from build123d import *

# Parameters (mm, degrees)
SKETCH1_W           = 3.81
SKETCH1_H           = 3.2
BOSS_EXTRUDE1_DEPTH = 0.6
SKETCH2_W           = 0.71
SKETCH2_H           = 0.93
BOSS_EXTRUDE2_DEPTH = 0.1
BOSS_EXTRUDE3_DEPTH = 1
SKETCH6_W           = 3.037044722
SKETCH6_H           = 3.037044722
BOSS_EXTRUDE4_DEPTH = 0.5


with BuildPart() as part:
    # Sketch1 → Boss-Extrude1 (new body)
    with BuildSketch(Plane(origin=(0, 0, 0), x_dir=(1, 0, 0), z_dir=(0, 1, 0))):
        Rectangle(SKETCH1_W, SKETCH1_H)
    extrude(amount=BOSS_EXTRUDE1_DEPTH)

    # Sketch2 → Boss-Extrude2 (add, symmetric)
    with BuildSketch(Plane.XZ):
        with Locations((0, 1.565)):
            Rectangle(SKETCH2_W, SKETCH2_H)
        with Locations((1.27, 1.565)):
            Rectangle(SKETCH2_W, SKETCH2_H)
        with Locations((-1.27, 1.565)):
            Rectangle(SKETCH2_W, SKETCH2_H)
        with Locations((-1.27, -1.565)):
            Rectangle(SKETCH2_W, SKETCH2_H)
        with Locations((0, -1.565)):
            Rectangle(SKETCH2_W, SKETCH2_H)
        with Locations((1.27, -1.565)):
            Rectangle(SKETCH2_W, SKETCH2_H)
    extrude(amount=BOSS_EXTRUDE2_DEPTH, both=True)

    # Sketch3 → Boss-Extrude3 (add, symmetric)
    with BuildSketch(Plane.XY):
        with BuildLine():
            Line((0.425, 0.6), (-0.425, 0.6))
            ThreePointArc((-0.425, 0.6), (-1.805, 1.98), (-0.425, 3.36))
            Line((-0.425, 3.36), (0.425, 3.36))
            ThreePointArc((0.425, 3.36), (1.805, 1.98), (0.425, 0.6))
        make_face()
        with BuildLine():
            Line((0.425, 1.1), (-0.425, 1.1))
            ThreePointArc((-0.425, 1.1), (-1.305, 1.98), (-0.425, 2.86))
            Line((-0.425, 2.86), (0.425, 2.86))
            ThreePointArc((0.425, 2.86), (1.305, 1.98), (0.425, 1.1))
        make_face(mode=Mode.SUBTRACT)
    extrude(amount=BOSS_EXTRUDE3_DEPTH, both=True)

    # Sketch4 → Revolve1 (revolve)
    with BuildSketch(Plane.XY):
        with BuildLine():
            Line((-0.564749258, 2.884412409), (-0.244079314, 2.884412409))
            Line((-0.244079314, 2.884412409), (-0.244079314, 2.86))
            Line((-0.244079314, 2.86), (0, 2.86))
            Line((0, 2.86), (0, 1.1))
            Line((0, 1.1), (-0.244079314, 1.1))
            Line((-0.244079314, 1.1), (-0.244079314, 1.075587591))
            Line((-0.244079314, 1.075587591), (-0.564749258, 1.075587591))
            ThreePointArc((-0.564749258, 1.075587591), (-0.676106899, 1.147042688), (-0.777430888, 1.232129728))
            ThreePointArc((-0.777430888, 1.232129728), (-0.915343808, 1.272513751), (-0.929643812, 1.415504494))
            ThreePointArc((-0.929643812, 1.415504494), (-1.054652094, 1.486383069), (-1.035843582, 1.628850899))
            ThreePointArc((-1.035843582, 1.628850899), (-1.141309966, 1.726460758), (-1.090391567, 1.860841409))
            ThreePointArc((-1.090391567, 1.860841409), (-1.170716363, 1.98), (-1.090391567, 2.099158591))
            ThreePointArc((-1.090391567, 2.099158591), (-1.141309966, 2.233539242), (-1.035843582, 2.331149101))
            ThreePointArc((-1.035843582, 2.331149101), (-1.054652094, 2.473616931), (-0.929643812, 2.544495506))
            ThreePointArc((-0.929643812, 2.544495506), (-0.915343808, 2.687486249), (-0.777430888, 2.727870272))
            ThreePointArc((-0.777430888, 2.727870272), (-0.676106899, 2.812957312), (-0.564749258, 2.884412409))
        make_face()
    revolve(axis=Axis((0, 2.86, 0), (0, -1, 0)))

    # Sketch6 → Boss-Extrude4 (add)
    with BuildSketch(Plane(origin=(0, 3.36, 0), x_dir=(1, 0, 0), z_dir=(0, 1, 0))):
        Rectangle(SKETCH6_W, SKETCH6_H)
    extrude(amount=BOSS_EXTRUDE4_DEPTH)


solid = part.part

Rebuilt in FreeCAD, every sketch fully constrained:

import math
import FreeCAD as App
import Part
import Sketcher
from FreeCAD import Vector


def add_polygon(sketch, points):
    """Adds a closed chain of lines whose ends are joined by coincident constraints."""
    first, n = sketch.GeometryCount, len(points)
    for a, b in zip(points, points[1:] + points[:1]):
        sketch.addGeometry(Part.LineSegment(App.Vector(*a, 0), App.Vector(*b, 0)), False)
    for i in range(n):
        sketch.addConstraint(Sketcher.Constraint("Coincident", first + i, 2, first + (i + 1) % n, 1))

doc = App.newDocument("Part")
body = doc.addObject("PartDesign::Body", "Body")

sketch1 = body.newObject("Sketcher::SketchObject", "Sketch")
sketch1.AttachmentSupport = (doc.getObject("XZ_Plane"), [""])
sketch1.MapMode = "FlatFace"
add_polygon(sketch1, [(-1.905, -1.6), (-1.905, 1.6), (1.905, 1.6), (1.905, -1.6)])
sketch1.addConstraint([
    Sketcher.Constraint("Vertical", 0),
    Sketcher.Constraint("Horizontal", 1),
    Sketcher.Constraint("Vertical", 2),
    Sketcher.Constraint("Horizontal", 3),
    Sketcher.Constraint("Symmetric", 0, 2, 2, 2, -1, 1),
    Sketcher.Constraint("DistanceY", 0, 1, 0, 2, 3.2),
    Sketcher.Constraint("DistanceX", 1, 1, 1, 2, 3.81),
])
pad1 = body.newObject("PartDesign::Pad", "Pad")
pad1.Profile = sketch1
pad1.Length = 0.6
pad1.Reversed = True

sketch2 = body.newObject("Sketcher::SketchObject", "Sketch001")
sketch2.AttachmentSupport = (doc.getObject("XZ_Plane"), [""])
sketch2.MapMode = "FlatFace"
add_polygon(sketch2, [(-0.355, 2.03), (-0.355, 1.1), (0.355, 1.1), (0.355, 2.03)])
add_polygon(sketch2, [(0.915, 2.03), (0.915, 1.1), (1.625, 1.1), (1.625, 2.03)])
add_polygon(sketch2, [(-1.625, 2.03), (-1.625, 1.1), (-0.915, 1.1), (-0.915, 2.03)])
add_polygon(sketch2, [(-1.625, -1.1), (-1.625, -2.03), (-0.915, -2.03), (-0.915, -1.1)])
add_polygon(sketch2, [(-0.355, -1.1), (-0.355, -2.03), (0.355, -2.03), (0.355, -1.1)])
add_polygon(sketch2, [(0.915, -1.1), (0.915, -2.03), (1.625, -2.03), (1.625, -1.1)])
sketch2.addConstraint([
    Sketcher.Constraint("Vertical", 0),
    Sketcher.Constraint("Horizontal", 1),
    Sketcher.Constraint("Vertical", 2),
    Sketcher.Constraint("Horizontal", 3),
    Sketcher.Constraint("Vertical", 4),
    Sketcher.Constraint("Horizontal", 5),
    Sketcher.Constraint("Vertical", 6),
    Sketcher.Constraint("Horizontal", 7),
    Sketcher.Constraint("Vertical", 8),
    Sketcher.Constraint("Horizontal", 9),
    Sketcher.Constraint("Vertical", 10),
    Sketcher.Constraint("Horizontal", 11),
    Sketcher.Constraint("Vertical", 12),
    Sketcher.Constraint("Horizontal", 13),
    Sketcher.Constraint("Vertical", 14),
    Sketcher.Constraint("Horizontal", 15),
    Sketcher.Constraint("Vertical", 16),
    Sketcher.Constraint("Horizontal", 17),
    Sketcher.Constraint("Vertical", 18),
    Sketcher.Constraint("Horizontal", 19),
    Sketcher.Constraint("Vertical", 20),
    Sketcher.Constraint("Horizontal", 21),
    Sketcher.Constraint("Vertical", 22),
    Sketcher.Constraint("Horizontal", 23),
    Sketcher.Constraint("Symmetric", 6, 2, 12, 2, -1, 1),
    Sketcher.Constraint("Symmetric", 4, 2, 14, 2, -1, 1),
    Sketcher.Constraint("Symmetric", 2, 2, 16, 2, -1, 1),
    Sketcher.Constraint("Symmetric", 0, 2, 18, 2, -1, 1),
    Sketcher.Constraint("Symmetric", 10, 2, 20, 2, -1, 1),
    Sketcher.Constraint("Symmetric", 8, 2, 22, 2, -1, 1),
    Sketcher.Constraint("Symmetric", 5, 2, 8, 2, -2),
    Sketcher.Constraint("Symmetric", 7, 2, 10, 2, -2),
    Sketcher.Constraint("Horizontal", 1, 2, 4, 2),
    Sketcher.Constraint("Horizontal", 3, 2, 6, 2),
    Sketcher.Constraint("Vertical", 3, 2, 16, 2),
    Sketcher.Constraint("Equal", 3, 5),
    Sketcher.Constraint("DistanceX", 1, 1, 1, 2, 0.71),
    Sketcher.Constraint("DistanceY", 0, 2, 0, 1, 0.93),
    Sketcher.Constraint("DistanceY", -1, 1, 0, 2, 1.1),
    Sketcher.Constraint("DistanceX", 1, 2, 4, 2, 0.56),
])
pad2 = body.newObject("PartDesign::Pad", "Pad001")
pad2.Profile = sketch2
pad2.Length = 0.2
pad2.Midplane = True

sketch3 = body.newObject("Sketcher::SketchObject", "Sketch002")
sketch3.AttachmentSupport = (doc.getObject("XY_Plane"), [""])
sketch3.MapMode = "FlatFace"
sketch3.addGeometry([
    Part.LineSegment(Vector(-0.425, 0.6, 0), Vector(0.425, 0.6, 0)),
    Part.ArcOfCircle(Part.Circle(Vector(0.425, 1.98, 0), Vector(0, 0, 1), 1.38), math.radians(-90), math.radians(90)),
    Part.LineSegment(Vector(0.425, 3.36, 0), Vector(-0.425, 3.36, 0)),
    Part.ArcOfCircle(Part.Circle(Vector(-0.425, 1.98, 0), Vector(0, 0, 1), 1.38), math.radians(90), math.radians(270)),
    Part.LineSegment(Vector(0.425, 1.1, 0), Vector(-0.425, 1.1, 0)),
    Part.ArcOfCircle(Part.Circle(Vector(-0.425, 1.98, 0), Vector(0, 0, 1), 0.88), math.radians(90), math.radians(270)),
    Part.LineSegment(Vector(-0.425, 2.86, 0), Vector(0.425, 2.86, 0)),
    Part.ArcOfCircle(Part.Circle(Vector(0.425, 1.98, 0), Vector(0, 0, 1), 0.88), math.radians(-90), math.radians(90)),
], False)
sketch3.addConstraint([
    Sketcher.Constraint("Tangent", 0, 2, 1, 1),
    Sketcher.Constraint("Tangent", 1, 2, 2, 1),
    Sketcher.Constraint("Tangent", 2, 2, 3, 1),
    Sketcher.Constraint("Tangent", 3, 2, 0, 1),
    Sketcher.Constraint("Tangent", 4, 2, 5, 2),
    Sketcher.Constraint("Tangent", 5, 1, 6, 1),
    Sketcher.Constraint("Tangent", 6, 2, 7, 2),
    Sketcher.Constraint("Tangent", 7, 1, 4, 1),
    Sketcher.Constraint("Horizontal", 0),
    Sketcher.Constraint("Horizontal", 2),
    Sketcher.Constraint("Horizontal", 4),
    Sketcher.Constraint("Horizontal", 6),
    Sketcher.Constraint("Coincident", 5, 3, 3, 3),
    Sketcher.Constraint("Vertical", 7, 3, 0, 2),
    Sketcher.Constraint("Radius", 1, 1.38),
    Sketcher.Constraint("Radius", 5, 0.88),
    Sketcher.Constraint("DistanceX", 0, 1, 0, 2, 0.85),
    Sketcher.Constraint("DistanceY", -1, 1, 0, 2, 0.6),
    Sketcher.Constraint("DistanceX", -1, 1, 1, 3, 0.425),
])
pad3 = body.newObject("PartDesign::Pad", "Pad002")
pad3.Profile = sketch3
pad3.Length = 2
pad3.Midplane = True

sketch4 = body.newObject("Sketcher::SketchObject", "Sketch003")
sketch4.AttachmentSupport = (doc.getObject("XY_Plane"), [""])
sketch4.MapMode = "FlatFace"
sketch4.addGeometry([
    Part.LineSegment(Vector(-0.244079, 2.884412, 0), Vector(-0.564749, 2.884412, 0)),
    Part.ArcOfCircle(Part.Circle(Vector(-0.063017, 1.98, 0), Vector(0, 0, 1), 1.034261), math.radians(119.019772), math.radians(133.68932)),
    Part.ArcOfCircle(Part.Circle(Vector(-0.816433, 2.605384, 0), Vector(0, 0, 1), 0.128546), math.radians(72.337318), math.radians(208.272945)),
    Part.ArcOfCircle(Part.Circle(Vector(-0.939575, 2.416334, 0), Vector(0, 0, 1), 0.128546), math.radians(85.568942), math.radians(221.504567)),
    Part.ArcOfCircle(Part.Circle(Vector(-1.016177, 2.204117, 0), Vector(0, 0, 1), 0.128546), math.radians(98.800564), math.radians(234.73619)),
    Part.ArcOfCircle(Part.Circle(Vector(-1.04217, 1.98, 0), Vector(0, 0, 1), 0.128546), math.radians(112.032187), math.radians(247.967813)),
    Part.ArcOfCircle(Part.Circle(Vector(-1.016177, 1.755883, 0), Vector(0, 0, 1), 0.128546), math.radians(125.26381), math.radians(261.199436)),
    Part.ArcOfCircle(Part.Circle(Vector(-0.939575, 1.543666, 0), Vector(0, 0, 1), 0.128546), math.radians(138.495433), math.radians(274.431058)),
    Part.ArcOfCircle(Part.Circle(Vector(-0.816433, 1.354616, 0), Vector(0, 0, 1), 0.128546), math.radians(151.727055), math.radians(287.662682)),
    Part.ArcOfCircle(Part.Circle(Vector(-0.063017, 1.98, 0), Vector(0, 0, 1), 1.034261), math.radians(-133.68932), math.radians(-119.019772)),
    Part.LineSegment(Vector(-0.564749, 1.075588, 0), Vector(-0.244079, 1.075588, 0)),
    Part.LineSegment(Vector(-0.244079, 1.075588, 0), Vector(-0.244079, 1.1, 0)),
    Part.LineSegment(Vector(-0.244079, 1.1, 0), Vector(0, 1.1, 0)),
    Part.LineSegment(Vector(0, 1.1, 0), Vector(0, 2.86, 0)),
    Part.LineSegment(Vector(0, 2.86, 0), Vector(-0.244079, 2.86, 0)),
    Part.LineSegment(Vector(-0.244079, 2.86, 0), Vector(-0.244079, 2.884412, 0)),
], False)
sketch4.addConstraint([
    Sketcher.Constraint("Coincident", 0, 2, 1, 1),
    Sketcher.Constraint("Coincident", 1, 2, 2, 1),
    Sketcher.Constraint("Coincident", 2, 2, 3, 1),
    Sketcher.Constraint("Coincident", 3, 2, 4, 1),
    Sketcher.Constraint("Coincident", 4, 2, 5, 1),
    Sketcher.Constraint("Coincident", 5, 2, 6, 1),
    Sketcher.Constraint("Coincident", 6, 2, 7, 1),
    Sketcher.Constraint("Coincident", 7, 2, 8, 1),
    Sketcher.Constraint("Coincident", 8, 2, 9, 1),
    Sketcher.Constraint("Coincident", 9, 2, 10, 1),
    Sketcher.Constraint("Coincident", 10, 2, 11, 1),
    Sketcher.Constraint("Coincident", 11, 2, 12, 1),
    Sketcher.Constraint("Coincident", 12, 2, 13, 1),
    Sketcher.Constraint("Coincident", 13, 2, 14, 1),
    Sketcher.Constraint("Coincident", 14, 2, 15, 1),
    Sketcher.Constraint("Coincident", 15, 2, 0, 1),
    Sketcher.Constraint("Horizontal", 0),
    Sketcher.Constraint("Horizontal", 10),
    Sketcher.Constraint("Vertical", 11),
    Sketcher.Constraint("Horizontal", 12),
    Sketcher.Constraint("Vertical", 13),
    Sketcher.Constraint("Horizontal", 14),
    Sketcher.Constraint("Vertical", 15),
    Sketcher.Constraint("Coincident", 9, 3, 1, 3),
    Sketcher.Constraint("Equal", 2, 3),
    Sketcher.Constraint("Equal", 3, 4),
    Sketcher.Constraint("Equal", 4, 5),
    Sketcher.Constraint("Equal", 5, 6),
    Sketcher.Constraint("Equal", 6, 7),
    Sketcher.Constraint("Equal", 7, 8),
    Sketcher.Constraint("Equal", 1, 9),
    Sketcher.Constraint("PointOnObject", 12, 2, -2),
    Sketcher.Constraint("Horizontal", 1, 3, 5, 3),
    Sketcher.Constraint("Vertical", 4, 3, 6, 3),
    Sketcher.Constraint("Vertical", 3, 3, 7, 3),
    Sketcher.Constraint("Vertical", 2, 3, 8, 3),
    Sketcher.Constraint("Vertical", 4, 2, 5, 2),
    Sketcher.Constraint("Vertical", 3, 2, 6, 2),
    Sketcher.Constraint("Vertical", 2, 2, 7, 2),
    Sketcher.Constraint("Vertical", 0, 2, 9, 2),
    Sketcher.Constraint("Vertical", 11, 2, 14, 2),
    Sketcher.Constraint("Equal", 11, 15),
    Sketcher.Constraint("DistanceY", 13, 1, 13, 2, 1.76),
    Sketcher.Constraint("DistanceY", -1, 1, 11, 2, 1.1),
    Sketcher.Constraint("Radius", 1, 1.034261),
    Sketcher.Constraint("Radius", 2, 0.128546),
    Sketcher.Constraint("DistanceX", 0, 2, 0, 1, 0.32067),
    Sketcher.Constraint("DistanceX", 12, 1, 12, 2, 0.244079),
    Sketcher.Constraint("DistanceX", 4, 3, 3, 3, 0.076601),
    Sketcher.Constraint("DistanceY", 6, 3, 2, 3, 0.849501),
    Sketcher.Constraint("DistanceX", 3, 2, 2, 2, 0.1062),
    Sketcher.Constraint("DistanceY", 11, 1, 11, 2, 0.024412),
    Sketcher.Constraint("DistanceX", 5, 3, -1, 1, 1.04217),
    Sketcher.Constraint("DistanceX", 1, 2, -1, 1, 0.777431),
    Sketcher.Constraint("DistanceY", -1, 1, 3, 2, 2.331149),
    Sketcher.Constraint("DistanceX", 4, 2, -1, 1, 1.090392),
])
revolution = body.newObject("PartDesign::Revolution", "Revolution")
revolution.Profile = sketch4
revolution.ReferenceAxis = (sketch4, ["V_Axis"])
revolution.Angle = 360

sketch5 = body.newObject("Sketcher::SketchObject", "Sketch004")
sketch5.AttachmentSupport = (doc.getObject("XZ_Plane"), [""])
sketch5.MapMode = "FlatFace"
sketch5.AttachmentOffset = App.Placement(Vector(0, 0, -3.36), App.Rotation())
add_polygon(sketch5, [(-1.518522, -1.518522), (-1.518522, 1.518522), (1.518522, 1.518522), (1.518522, -1.518522)])
sketch5.addConstraint([
    Sketcher.Constraint("Vertical", 0),
    Sketcher.Constraint("Horizontal", 1),
    Sketcher.Constraint("Vertical", 2),
    Sketcher.Constraint("Horizontal", 3),
    Sketcher.Constraint("Symmetric", 0, 2, 2, 2, -1, 1),
    Sketcher.Constraint("Equal", 3, 0),
    Sketcher.Constraint("DistanceX", 1, 1, 1, 2, 3.037045),
])
pad4 = body.newObject("PartDesign::Pad", "Pad003")
pad4.Profile = sketch5
pad4.Length = 0.5
pad4.Reversed = True

doc.recompute()
